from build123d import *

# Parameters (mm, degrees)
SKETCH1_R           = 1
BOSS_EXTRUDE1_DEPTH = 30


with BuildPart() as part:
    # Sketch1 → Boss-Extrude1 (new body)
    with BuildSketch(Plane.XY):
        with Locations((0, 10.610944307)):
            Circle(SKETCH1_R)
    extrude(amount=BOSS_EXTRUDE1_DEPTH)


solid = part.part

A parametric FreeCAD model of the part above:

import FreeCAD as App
import Part
import Sketcher

doc = App.newDocument("Part")
body = doc.addObject("PartDesign::Body", "Body")

sketch1 = body.newObject("Sketcher::SketchObject", "Sketch")
sketch1.AttachmentSupport = (doc.getObject("XY_Plane"), [""])
sketch1.MapMode = "FlatFace"
sketch1.addGeometry(Part.Circle(App.Vector(0, 10.6, 0), App.Vector(0, 0, 1), 1), False)
sketch1.addConstraint(Sketcher.Constraint("PointOnObject", 0, 3, -2))
sketch1.addConstraint(Sketcher.Constraint("Diameter", 0, 2.0))
sketch1.addConstraint(Sketcher.Constraint("DistanceY", -1, 1, 0, 3, 10.610944))
pad1 = body.newObject("PartDesign::Pad", "Pad")
pad1.Profile = sketch1
pad1.Length = 30

doc.recompute()
